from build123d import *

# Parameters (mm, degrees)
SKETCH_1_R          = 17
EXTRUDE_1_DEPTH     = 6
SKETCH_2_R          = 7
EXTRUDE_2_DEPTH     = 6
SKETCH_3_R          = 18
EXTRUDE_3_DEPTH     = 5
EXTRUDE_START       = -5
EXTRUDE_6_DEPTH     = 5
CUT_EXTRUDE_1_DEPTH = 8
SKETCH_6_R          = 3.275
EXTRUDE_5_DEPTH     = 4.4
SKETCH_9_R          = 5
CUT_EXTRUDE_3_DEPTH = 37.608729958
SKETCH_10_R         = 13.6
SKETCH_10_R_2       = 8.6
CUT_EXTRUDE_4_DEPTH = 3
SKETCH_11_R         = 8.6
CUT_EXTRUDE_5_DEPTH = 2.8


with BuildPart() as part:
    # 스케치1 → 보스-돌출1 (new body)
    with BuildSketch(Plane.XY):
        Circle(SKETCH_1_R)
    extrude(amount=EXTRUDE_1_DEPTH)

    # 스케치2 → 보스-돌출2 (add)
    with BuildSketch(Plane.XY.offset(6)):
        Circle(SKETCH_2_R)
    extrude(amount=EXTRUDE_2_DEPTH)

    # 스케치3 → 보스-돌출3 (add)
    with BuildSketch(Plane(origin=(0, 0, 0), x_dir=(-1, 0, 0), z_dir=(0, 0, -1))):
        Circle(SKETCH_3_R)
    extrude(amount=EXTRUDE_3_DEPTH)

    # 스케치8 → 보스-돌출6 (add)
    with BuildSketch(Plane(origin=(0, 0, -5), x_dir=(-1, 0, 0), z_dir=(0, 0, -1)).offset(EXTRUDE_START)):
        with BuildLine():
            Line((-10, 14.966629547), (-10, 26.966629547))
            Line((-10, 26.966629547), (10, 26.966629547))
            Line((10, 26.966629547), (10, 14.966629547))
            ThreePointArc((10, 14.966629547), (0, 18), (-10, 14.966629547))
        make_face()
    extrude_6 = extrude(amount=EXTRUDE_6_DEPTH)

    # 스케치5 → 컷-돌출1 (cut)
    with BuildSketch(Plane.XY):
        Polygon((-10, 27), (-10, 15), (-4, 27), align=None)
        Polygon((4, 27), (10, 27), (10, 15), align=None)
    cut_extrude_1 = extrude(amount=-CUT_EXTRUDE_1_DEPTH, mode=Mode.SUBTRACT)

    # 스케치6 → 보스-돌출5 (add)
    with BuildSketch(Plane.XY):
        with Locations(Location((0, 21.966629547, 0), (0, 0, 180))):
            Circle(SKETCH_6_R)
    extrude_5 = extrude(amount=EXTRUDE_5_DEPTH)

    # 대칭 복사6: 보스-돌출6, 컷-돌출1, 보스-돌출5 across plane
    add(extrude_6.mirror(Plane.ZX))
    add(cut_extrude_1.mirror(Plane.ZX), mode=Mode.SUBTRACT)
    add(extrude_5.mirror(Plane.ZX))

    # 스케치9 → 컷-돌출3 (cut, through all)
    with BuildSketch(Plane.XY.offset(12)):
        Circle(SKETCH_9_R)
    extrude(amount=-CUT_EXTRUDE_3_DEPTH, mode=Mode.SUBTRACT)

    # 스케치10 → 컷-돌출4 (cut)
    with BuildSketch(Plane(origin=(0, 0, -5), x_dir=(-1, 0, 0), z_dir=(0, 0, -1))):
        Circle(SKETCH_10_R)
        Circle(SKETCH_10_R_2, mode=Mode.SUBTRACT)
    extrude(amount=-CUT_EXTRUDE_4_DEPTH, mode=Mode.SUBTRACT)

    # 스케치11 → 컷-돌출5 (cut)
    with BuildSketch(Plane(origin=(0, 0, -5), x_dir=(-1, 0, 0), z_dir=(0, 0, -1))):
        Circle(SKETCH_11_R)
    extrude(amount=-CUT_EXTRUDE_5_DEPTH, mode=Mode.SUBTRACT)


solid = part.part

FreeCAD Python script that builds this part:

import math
import FreeCAD as App
import Part
import Sketcher
from FreeCAD import Vector


def add_polygon(sketch, points):
    """Adds a closed chain of lines whose ends are joined by coincident constraints."""
    first, n = sketch.GeometryCount, len(points)
    for a, b in zip(points, points[1:] + points[:1]):
        sketch.addGeometry(Part.LineSegment(App.Vector(*a, 0), App.Vector(*b, 0)), False)
    for i in range(n):
        sketch.addConstraint(Sketcher.Constraint("Coincident", first + i, 2, first + (i + 1) % n, 1))

doc = App.newDocument("Part")
body = doc.addObject("PartDesign::Body", "Body")

# Sketch on XY plane
sketch1 = body.newObject("Sketcher::SketchObject", "Sketch")
sketch1.AttachmentSupport = (doc.getObject("XY_Plane"), [""])
sketch1.MapMode = "FlatFace"
sketch1.addGeometry(Part.Circle(Vector(0, 0, 0), Vector(0, 0, 1), 17), False)
sketch1.addConstraint(Sketcher.Constraint("Coincident", 0, 3, -1, 1))
sketch1.addConstraint(Sketcher.Constraint("Diameter", 0, 34.0))
pad1 = body.newObject("PartDesign::Pad", "Pad")
pad1.Profile = sketch1
pad1.Length = 6

# Sketch on XY plane
sketch2 = body.newObject("Sketcher::SketchObject", "Sketch001")
sketch2.AttachmentSupport = (doc.getObject("XY_Plane"), [""])
sketch2.MapMode = "FlatFace"
sketch2.AttachmentOffset = App.Placement(Vector(0, 0, 6), App.Rotation())
sketch2.addGeometry(Part.Circle(Vector(0, 0, 0), Vector(0, 0, 1), 7), False)
sketch2.addConstraint(Sketcher.Constraint("Coincident", 0, 3, -1, 1))
sketch2.addConstraint(Sketcher.Constraint("Diameter", 0, 14.0))
pad2 = body.newObject("PartDesign::Pad", "Pad001")
pad2.Profile = sketch2
pad2.Length = 6

# Sketch on XY plane
sketch3 = body.newObject("Sketcher::SketchObject", "Sketch002")
sketch3.AttachmentSupport = (doc.getObject("XY_Plane"), [""])
sketch3.MapMode = "FlatFace"
sketch3.addGeometry(Part.Circle(Vector(0, 0, 0), Vector(0, 0, 1), 18), False)
sketch3.addConstraint(Sketcher.Constraint("Coincident", 0, 3, -1, 1))
sketch3.addConstraint(Sketcher.Constraint("Diameter", 0, 36.0))
pad3 = body.newObject("PartDesign::Pad", "Pad002")
pad3.Profile = sketch3
pad3.Length = 5
pad3.Reversed = True

# Sketch on XY plane
sketch4 = body.newObject("Sketcher::SketchObject", "Sketch003")
sketch4.AttachmentSupport = (doc.getObject("XY_Plane"), [""])
sketch4.MapMode = "FlatFace"
sketch4.addGeometry(Part.LineSegment(Vector(10, 27, 0), Vector(10, 15, 0)), False)
sketch4.addGeometry(Part.ArcOfCircle(Part.Circle(Vector(0, 0, 0), Vector(0, 0, 1), 18), math.radians(56), math.radians(124)), False)
sketch4.addGeometry(Part.LineSegment(Vector(-10, 15, 0), Vector(-10, 27, 0)), False)
sketch4.addGeometry(Part.LineSegment(Vector(-10, 27, 0), Vector(10, 27, 0)), False)
sketch4.addConstraint(Sketcher.Constraint("Coincident", 0, 2, 1, 1))
sketch4.addConstraint(Sketcher.Constraint("Coincident", 1, 2, 2, 1))
sketch4.addConstraint(Sketcher.Constraint("Coincident", 2, 2, 3, 1))
sketch4.addConstraint(Sketcher.Constraint("Coincident", 3, 2, 0, 1))
sketch4.addConstraint(Sketcher.Constraint("Vertical", 0))
sketch4.addConstraint(Sketcher.Constraint("Vertical", 2))
sketch4.addConstraint(Sketcher.Constraint("Horizontal", 3))
sketch4.addConstraint(Sketcher.Constraint("Coincident", 1, 3, -1, 1))
sketch4.addConstraint(Sketcher.Constraint("Horizontal", 0, 2, 1, 2))
sketch4.addConstraint(Sketcher.Constraint("Radius", 1, 18.0))
sketch4.addConstraint(Sketcher.Constraint("DistanceX", 3, 1, 3, 2, 20.0))
sketch4.addConstraint(Sketcher.Constraint("DistanceY", 0, 2, 0, 1, 12.0))
pad4 = body.newObject("PartDesign::Pad", "Pad003")
pad4.Profile = sketch4
pad4.Length = 5
pad4.Reversed = True

# Sketch on XY plane
sketch5 = body.newObject("Sketcher::SketchObject", "Sketch004")
sketch5.AttachmentSupport = (doc.getObject("XY_Plane"), [""])
sketch5.MapMode = "FlatFace"
add_polygon(sketch5, [(-10, 27), (-10, 15), (-4, 27)])  # lines 0-2
add_polygon(sketch5, [(10, 27), (4, 27), (10, 15)])  # lines 3-5
sketch5.addConstraint(Sketcher.Constraint("Vertical", 0))
sketch5.addConstraint(Sketcher.Constraint("Horizontal", 2))
sketch5.addConstraint(Sketcher.Constraint("Horizontal", 3))
sketch5.addConstraint(Sketcher.Constraint("Vertical", 5))
sketch5.addConstraint(Sketcher.Constraint("Symmetric", 1, 2, 3, 2, -2))
sketch5.addConstraint(Sketcher.Constraint("Symmetric", 0, 2, 4, 2, -2))
sketch5.addConstraint(Sketcher.Constraint("DistanceX", 2, 2, 2, 1, 6.0))
sketch5.addConstraint(Sketcher.Constraint("DistanceY", 0, 2, 0, 1, 12.0))
sketch5.addConstraint(Sketcher.Constraint("DistanceX", 0, 2, -1, 1, 10.0))
sketch5.addConstraint(Sketcher.Constraint("DistanceY", -1, 1, 0, 2, 15.0))
pocket1 = body.newObject("PartDesign::Pocket", "Pocket")
pocket1.Profile = sketch5
pocket1.Length = 8

# Sketch on XY plane
sketch6 = body.newObject("Sketcher::SketchObject", "Sketch005")
sketch6.AttachmentSupport = (doc.getObject("XY_Plane"), [""])
sketch6.MapMode = "FlatFace"
sketch6.addGeometry(Part.Circle(Vector(0, 22, 0), Vector(0, 0, 1), 3.3), False)
sketch6.addConstraint(Sketcher.Constraint("PointOnObject", 0, 3, -2))
sketch6.addConstraint(Sketcher.Constraint("Diameter", 0, 6.55))
sketch6.addConstraint(Sketcher.Constraint("DistanceY", -1, 1, 0, 3, 21.96663))
pad5 = body.newObject("PartDesign::Pad", "Pad004")
pad5.Profile = sketch6
pad5.Length = 4.4
doc.recompute()

mirrored = body.newObject("PartDesign::Mirrored", "Mirrored")
mirrored.Originals = [pad4, pocket1, pad5]
mirrored.MirrorPlane = (doc.getObject("XZ_Plane"), [""])
body.Tip = mirrored

# Sketch on XY plane
sketch7 = body.newObject("Sketcher::SketchObject", "Sketch006")
sketch7.AttachmentSupport = (doc.getObject("XY_Plane"), [""])
sketch7.MapMode = "FlatFace"
sketch7.AttachmentOffset = App.Placement(Vector(0, 0, 12), App.Rotation())
sketch7.addGeometry(Part.Circle(Vector(0, 0, 0), Vector(0, 0, 1), 5), False)
sketch7.addConstraint(Sketcher.Constraint("Coincident", 0, 3, -1, 1))
sketch7.addConstraint(Sketcher.Constraint("Diameter", 0, 10.0))
pocket2 = body.newObject("PartDesign::Pocket", "Pocket001")
pocket2.Profile = sketch7
pocket2.Type = "ThroughAll"

# Sketch on XY plane
sketch8 = body.newObject("Sketcher::SketchObject", "Sketch007")
sketch8.AttachmentSupport = (doc.getObject("XY_Plane"), [""])
sketch8.MapMode = "FlatFace"
sketch8.AttachmentOffset = App.Placement(Vector(0, 0, -5), App.Rotation())
sketch8.addGeometry(Part.Circle(Vector(0, 0, 0), Vector(0, 0, 1), 14), False)
sketch8.addGeometry(Part.Circle(Vector(0, 0, 0), Vector(0, 0, 1), 9), False)
sketch8.addConstraint(Sketcher.Constraint("Coincident", 0, 3, -1, 1))
sketch8.addConstraint(Sketcher.Constraint("Coincident", 1, 3, -1, 1))
sketch8.addConstraint(Sketcher.Constraint("Diameter", 0, 27.2))
sketch8.addConstraint(Sketcher.Constraint("Diameter", 1, 17.2))
pocket3 = body.newObject("PartDesign::Pocket", "Pocket002")
pocket3.Profile = sketch8
pocket3.Length = 3
pocket3.Reversed = True

# Sketch on XY plane
sketch9 = body.newObject("Sketcher::SketchObject", "Sketch008")
sketch9.AttachmentSupport = (doc.getObject("XY_Plane"), [""])
sketch9.MapMode = "FlatFace"
sketch9.AttachmentOffset = App.Placement(Vector(0, 0, -5), App.Rotation())
sketch9.addGeometry(Part.Circle(Vector(0, 0, 0), Vector(0, 0, 1), 9), False)
sketch9.addConstraint(Sketcher.Constraint("Coincident", 0, 3, -1, 1))
sketch9.addConstraint(Sketcher.Constraint("Diameter", 0, 17.2))
pocket4 = body.newObject("PartDesign::Pocket", "Pocket003")
pocket4.Profile = sketch9
pocket4.Length = 2.8
pocket4.Reversed = True

doc.recompute()
